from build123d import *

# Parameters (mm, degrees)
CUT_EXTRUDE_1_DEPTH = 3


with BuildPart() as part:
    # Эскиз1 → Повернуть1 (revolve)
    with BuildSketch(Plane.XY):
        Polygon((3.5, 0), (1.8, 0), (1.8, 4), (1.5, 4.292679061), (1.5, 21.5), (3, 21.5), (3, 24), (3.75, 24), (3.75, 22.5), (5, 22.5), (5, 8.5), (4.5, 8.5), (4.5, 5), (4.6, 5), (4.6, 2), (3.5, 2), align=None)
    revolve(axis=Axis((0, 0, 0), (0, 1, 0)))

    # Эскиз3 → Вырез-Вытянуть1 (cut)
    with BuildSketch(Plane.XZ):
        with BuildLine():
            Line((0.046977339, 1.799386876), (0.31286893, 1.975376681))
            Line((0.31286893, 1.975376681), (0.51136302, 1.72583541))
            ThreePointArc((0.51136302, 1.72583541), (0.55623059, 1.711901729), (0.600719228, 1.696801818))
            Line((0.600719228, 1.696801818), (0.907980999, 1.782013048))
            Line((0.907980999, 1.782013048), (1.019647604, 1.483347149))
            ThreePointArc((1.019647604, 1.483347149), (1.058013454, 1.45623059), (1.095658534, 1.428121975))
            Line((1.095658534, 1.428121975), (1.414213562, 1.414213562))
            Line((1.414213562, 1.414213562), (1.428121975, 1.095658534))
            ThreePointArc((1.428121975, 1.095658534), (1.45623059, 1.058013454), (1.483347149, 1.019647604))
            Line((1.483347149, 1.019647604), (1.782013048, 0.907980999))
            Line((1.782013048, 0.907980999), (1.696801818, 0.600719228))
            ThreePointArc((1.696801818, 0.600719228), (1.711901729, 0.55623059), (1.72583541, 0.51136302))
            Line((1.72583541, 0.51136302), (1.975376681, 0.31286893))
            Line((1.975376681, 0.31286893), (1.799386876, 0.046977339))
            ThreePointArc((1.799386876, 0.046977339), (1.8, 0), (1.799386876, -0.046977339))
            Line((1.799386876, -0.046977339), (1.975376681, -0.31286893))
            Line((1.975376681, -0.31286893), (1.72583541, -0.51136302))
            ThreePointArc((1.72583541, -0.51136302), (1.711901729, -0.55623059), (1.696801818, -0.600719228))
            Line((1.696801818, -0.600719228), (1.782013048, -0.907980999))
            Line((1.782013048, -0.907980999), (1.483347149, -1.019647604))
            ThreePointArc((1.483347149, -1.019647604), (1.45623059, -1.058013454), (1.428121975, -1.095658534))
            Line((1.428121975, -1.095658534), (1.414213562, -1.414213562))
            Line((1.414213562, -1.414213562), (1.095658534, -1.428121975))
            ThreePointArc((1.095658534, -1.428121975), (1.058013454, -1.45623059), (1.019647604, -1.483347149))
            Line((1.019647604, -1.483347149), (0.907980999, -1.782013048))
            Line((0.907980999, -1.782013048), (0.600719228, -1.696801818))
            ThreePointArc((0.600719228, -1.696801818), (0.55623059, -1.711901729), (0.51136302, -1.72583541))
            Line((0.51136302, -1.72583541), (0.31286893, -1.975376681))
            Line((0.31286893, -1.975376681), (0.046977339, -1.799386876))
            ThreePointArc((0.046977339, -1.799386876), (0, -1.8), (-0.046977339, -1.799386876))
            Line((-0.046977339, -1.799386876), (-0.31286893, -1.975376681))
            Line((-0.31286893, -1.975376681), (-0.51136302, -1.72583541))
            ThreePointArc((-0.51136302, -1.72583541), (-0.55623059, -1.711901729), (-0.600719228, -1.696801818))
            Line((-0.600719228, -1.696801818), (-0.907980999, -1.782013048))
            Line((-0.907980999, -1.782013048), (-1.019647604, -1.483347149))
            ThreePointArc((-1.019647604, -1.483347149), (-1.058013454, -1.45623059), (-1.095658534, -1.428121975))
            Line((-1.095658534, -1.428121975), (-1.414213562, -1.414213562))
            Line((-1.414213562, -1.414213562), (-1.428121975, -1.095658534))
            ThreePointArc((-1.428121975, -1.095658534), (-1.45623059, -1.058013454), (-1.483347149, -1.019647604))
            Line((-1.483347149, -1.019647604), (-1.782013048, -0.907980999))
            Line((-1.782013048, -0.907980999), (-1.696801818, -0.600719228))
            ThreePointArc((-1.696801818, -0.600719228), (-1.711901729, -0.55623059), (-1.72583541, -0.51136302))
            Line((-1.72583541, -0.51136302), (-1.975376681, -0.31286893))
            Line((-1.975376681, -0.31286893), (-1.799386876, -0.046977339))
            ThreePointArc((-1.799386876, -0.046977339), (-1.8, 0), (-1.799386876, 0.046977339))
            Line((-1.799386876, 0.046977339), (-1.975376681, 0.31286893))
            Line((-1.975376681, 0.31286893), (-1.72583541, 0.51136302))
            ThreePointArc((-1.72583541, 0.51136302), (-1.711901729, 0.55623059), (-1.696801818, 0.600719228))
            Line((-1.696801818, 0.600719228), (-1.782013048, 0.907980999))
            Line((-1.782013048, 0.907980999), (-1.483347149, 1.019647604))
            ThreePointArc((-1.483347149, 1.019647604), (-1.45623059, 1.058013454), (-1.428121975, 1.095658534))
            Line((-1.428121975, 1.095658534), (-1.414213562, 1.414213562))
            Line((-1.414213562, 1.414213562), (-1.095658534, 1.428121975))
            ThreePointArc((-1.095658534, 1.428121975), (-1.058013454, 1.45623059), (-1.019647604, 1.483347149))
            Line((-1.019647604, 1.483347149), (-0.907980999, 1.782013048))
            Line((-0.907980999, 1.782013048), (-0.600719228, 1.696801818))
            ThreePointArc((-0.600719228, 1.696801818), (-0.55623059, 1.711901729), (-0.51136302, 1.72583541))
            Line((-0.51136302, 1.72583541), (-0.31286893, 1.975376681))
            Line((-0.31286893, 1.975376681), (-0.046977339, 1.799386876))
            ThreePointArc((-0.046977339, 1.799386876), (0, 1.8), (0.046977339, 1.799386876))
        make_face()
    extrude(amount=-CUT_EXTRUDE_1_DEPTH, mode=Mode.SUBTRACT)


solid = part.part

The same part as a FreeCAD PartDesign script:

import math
import FreeCAD as App
import Part
import Sketcher
from FreeCAD import Vector
Q = App.Units.Quantity

doc = App.newDocument("Part")
params = doc.addObject("Spreadsheet::Sheet", "Params")
for row, (alias, value) in enumerate([
    ("sketch1_height", "2 mm"),
    ("sketch1_height2", "3 mm"),
    ("sketch1_height3", "14 mm"),
    ("sketch1_height4", "4 mm"),
    ("sketch1_width", "1.7 mm"),
    ("revolution_angle", "360 deg"),
    ("sketch2_radius", "1.8 mm"),
    ("pocket1_length", "3 mm"),
], start=1):
    params.set(f"A{row}", alias)
    params.set(f"B{row}", "=" + value)
    params.setAlias(f"B{row}", alias)

body = doc.addObject("PartDesign::Body", "Body")

# Sketch on XY plane
sketch1 = doc.addObject("Sketcher::SketchObject", "Sketch")
body.addObject(sketch1)
sketch1.AttachmentSupport = (doc.XY_Plane, [""])
sketch1.MapMode = "FlatFace"
sketch1.addGeometry(Part.LineSegment(Vector(1.8, 0, 0), Vector(3.5, 0, 0)), False)
sketch1.addGeometry(Part.LineSegment(Vector(3.5, 0, 0), Vector(3.5, 2, 0)), False)
sketch1.addGeometry(Part.LineSegment(Vector(3.5, 2, 0), Vector(4.6, 2, 0)), False)
sketch1.addGeometry(Part.LineSegment(Vector(4.6, 2, 0), Vector(4.6, 5, 0)), False)
sketch1.addGeometry(Part.LineSegment(Vector(4.6, 5, 0), Vector(4.5, 5, 0)), False)
sketch1.addGeometry(Part.LineSegment(Vector(4.5, 5, 0), Vector(4.5, 8.5, 0)), False)
sketch1.addGeometry(Part.LineSegment(Vector(4.5, 8.5, 0), Vector(5, 8.5, 0)), False)
sketch1.addGeometry(Part.LineSegment(Vector(5, 8.5, 0), Vector(5, 22.5, 0)), False)
sketch1.addGeometry(Part.LineSegment(Vector(5, 22.5, 0), Vector(3.75, 22.5, 0)), False)
sketch1.addGeometry(Part.LineSegment(Vector(3.75, 22.5, 0), Vector(3.75, 24, 0)), False)
sketch1.addGeometry(Part.LineSegment(Vector(3.75, 24, 0), Vector(3, 24, 0)), False)
sketch1.addGeometry(Part.LineSegment(Vector(3, 24, 0), Vector(3, 21.5, 0)), False)
sketch1.addGeometry(Part.LineSegment(Vector(3, 21.5, 0), Vector(1.5, 21.5, 0)), False)
sketch1.addGeometry(Part.LineSegment(Vector(1.5, 21.5, 0), Vector(1.5, 4.29, 0)), False)
sketch1.addGeometry(Part.LineSegment(Vector(1.5, 4.29, 0), Vector(1.8, 4, 0)), False)
sketch1.addGeometry(Part.LineSegment(Vector(1.8, 4, 0), Vector(1.8, 0, 0)), False)
sketch1.addConstraint(Sketcher.Constraint("Coincident", 0, 2, 1, 1))
sketch1.addConstraint(Sketcher.Constraint("Coincident", 1, 2, 2, 1))
sketch1.addConstraint(Sketcher.Constraint("Coincident", 2, 2, 3, 1))
sketch1.addConstraint(Sketcher.Constraint("Coincident", 3, 2, 4, 1))
sketch1.addConstraint(Sketcher.Constraint("Coincident", 4, 2, 5, 1))
sketch1.addConstraint(Sketcher.Constraint("Coincident", 5, 2, 6, 1))
sketch1.addConstraint(Sketcher.Constraint("Coincident", 6, 2, 7, 1))
sketch1.addConstraint(Sketcher.Constraint("Coincident", 7, 2, 8, 1))
sketch1.addConstraint(Sketcher.Constraint("Coincident", 8, 2, 9, 1))
sketch1.addConstraint(Sketcher.Constraint("Coincident", 9, 2, 10, 1))
sketch1.addConstraint(Sketcher.Constraint("Coincident", 10, 2, 11, 1))
sketch1.addConstraint(Sketcher.Constraint("Coincident", 11, 2, 12, 1))
sketch1.addConstraint(Sketcher.Constraint("Coincident", 12, 2, 13, 1))
sketch1.addConstraint(Sketcher.Constraint("Coincident", 13, 2, 14, 1))
sketch1.addConstraint(Sketcher.Constraint("Coincident", 14, 2, 15, 1))
sketch1.addConstraint(Sketcher.Constraint("Coincident", 15, 2, 0, 1))
sketch1.addConstraint(Sketcher.Constraint("Horizontal", 0))
sketch1.addConstraint(Sketcher.Constraint("Vertical", 1))
sketch1.addConstraint(Sketcher.Constraint("Horizontal", 2))
sketch1.addConstraint(Sketcher.Constraint("Vertical", 3))
sketch1.addConstraint(Sketcher.Constraint("Horizontal", 4))
sketch1.addConstraint(Sketcher.Constraint("Vertical", 5))
sketch1.addConstraint(Sketcher.Constraint("Horizontal", 6))
sketch1.addConstraint(Sketcher.Constraint("Vertical", 7))
sketch1.addConstraint(Sketcher.Constraint("Horizontal", 8))
sketch1.addConstraint(Sketcher.Constraint("Vertical", 9))
sketch1.addConstraint(Sketcher.Constraint("Horizontal", 10))
sketch1.addConstraint(Sketcher.Constraint("Vertical", 11))
sketch1.addConstraint(Sketcher.Constraint("Horizontal", 12))
sketch1.addConstraint(Sketcher.Constraint("Vertical", 13))
sketch1.addConstraint(Sketcher.Constraint("Vertical", 15))
sketch1.addConstraint(Sketcher.Constraint("PointOnObject", 0, 2, -1))
sketch1.addConstraint(Sketcher.Constraint("Equal", 12, 9))
sketch1.addConstraint(Sketcher.Constraint("DistanceY", 1, 1, 1, 2, Q("2 mm")))
sketch1.addConstraint(Sketcher.Constraint("DistanceY", 3, 1, 3, 2, Q("3 mm")))
sketch1.addConstraint(Sketcher.Constraint("DistanceY", 7, 1, 7, 2, Q("14 mm")))
sketch1.addConstraint(Sketcher.Constraint("DistanceY", 15, 2, 15, 1, Q("4 mm")))
sketch1.addConstraint(Sketcher.Constraint("DistanceX", 0, 1, 0, 2, Q("1.7 mm")))
sketch1.addConstraint(Sketcher.Constraint("DistanceX", 2, 1, 2, 2, Q("1.1 mm")))
sketch1.addConstraint(Sketcher.Constraint("DistanceX", 4, 2, 4, 1, Q("0.1 mm")))
sketch1.addConstraint(Sketcher.Constraint("DistanceX", 6, 1, 6, 2, Q("0.5 mm")))
sketch1.addConstraint(Sketcher.Constraint("DistanceX", 12, 2, 12, 1, Q("1.5 mm")))
sketch1.addConstraint(Sketcher.Constraint("DistanceY", 5, 1, 5, 2, Q("3.5 mm")))
sketch1.addConstraint(Sketcher.Constraint("DistanceY", 11, 2, 11, 1, Q("2.5 mm")))
sketch1.addConstraint(Sketcher.Constraint("DistanceX", -1, 1, 6, 2, Q("5 mm")))
sketch1.addConstraint(Sketcher.Constraint("DistanceX", -1, 1, 10, 2, Q("3 mm")))
sketch1.addConstraint(Sketcher.Constraint("DistanceX", 8, 2, 8, 1, Q("1.25 mm")))
sketch1.addConstraint(Sketcher.Constraint("DistanceY", 13, 2, 13, 1, Q("17.207321 mm")))
sketch1.setExpression("Constraints[33]", "Params.sketch1_height")
sketch1.setExpression("Constraints[34]", "Params.sketch1_height2")
sketch1.setExpression("Constraints[35]", "Params.sketch1_height3")
sketch1.setExpression("Constraints[36]", "Params.sketch1_height4")
sketch1.setExpression("Constraints[37]", "Params.sketch1_width")
revolution = doc.addObject("PartDesign::Revolution", "Revolution")
body.addObject(revolution)
revolution.Profile = sketch1
revolution.ReferenceAxis = (sketch1, ["V_Axis"])
revolution.setExpression("Angle", "Params.revolution_angle")

# Sketch on XZ plane
sketch2 = doc.addObject("Sketcher::SketchObject", "Sketch001")
body.addObject(sketch2)
sketch2.AttachmentSupport = (doc.XZ_Plane, [""])
sketch2.MapMode = "FlatFace"
sketch2.addGeometry(Part.LineSegment(Vector(0.31, 1.98, 0), Vector(0.05, 1.8, 0)), False)
sketch2.addGeometry(Part.ArcOfCircle(Part.Circle(Vector(0, 0, 0), Vector(0, 0, 1), 1.8), math.radians(88.5), math.radians(91.5)), False)
sketch2.addGeometry(Part.LineSegment(Vector(-0.05, 1.8, 0), Vector(-0.31, 1.98, 0)), False)
sketch2.addGeometry(Part.LineSegment(Vector(-0.31, 1.98, 0), Vector(-0.51, 1.73, 0)), False)
sketch2.addGeometry(Part.ArcOfCircle(Part.Circle(Vector(0, 0, 0), Vector(0, 0, 1), 1.8), math.radians(106.5), math.radians(109.5)), False)
sketch2.addGeometry(Part.LineSegment(Vector(-0.6, 1.7, 0), Vector(-0.91, 1.78, 0)), False)
sketch2.addGeometry(Part.LineSegment(Vector(-0.91, 1.78, 0), Vector(-1.02, 1.48, 0)), False)
sketch2.addGeometry(Part.ArcOfCircle(Part.Circle(Vector(0, 0, 0), Vector(0, 0, 1), 1.8), math.radians(124.5), math.radians(127.5)), False)
sketch2.addGeometry(Part.LineSegment(Vector(-1.1, 1.43, 0), Vector(-1.41, 1.41, 0)), False)
sketch2.addGeometry(Part.LineSegment(Vector(-1.41, 1.41, 0), Vector(-1.43, 1.1, 0)), False)
sketch2.addGeometry(Part.ArcOfCircle(Part.Circle(Vector(0, 0, 0), Vector(0, 0, 1), 1.8), math.radians(142.5), math.radians(145.5)), False)
sketch2.addGeometry(Part.LineSegment(Vector(-1.48, 1.02, 0), Vector(-1.78, 0.91, 0)), False)
sketch2.addGeometry(Part.LineSegment(Vector(-1.78, 0.91, 0), Vector(-1.7, 0.6, 0)), False)
sketch2.addGeometry(Part.ArcOfCircle(Part.Circle(Vector(0, 0, 0), Vector(0, 0, 1), 1.8), math.radians(160.5), math.radians(163.5)), False)
sketch2.addGeometry(Part.LineSegment(Vector(-1.73, 0.51, 0), Vector(-1.98, 0.31, 0)), False)
sketch2.addGeometry(Part.LineSegment(Vector(-1.98, 0.31, 0), Vector(-1.8, 0.05, 0)), False)
sketch2.addGeometry(Part.ArcOfCircle(Part.Circle(Vector(0, 0, 0), Vector(0, 0, 1), 1.8), math.radians(178.5), math.radians(181.5)), False)
sketch2.addGeometry(Part.LineSegment(Vector(-1.8, -0.05, 0), Vector(-1.98, -0.31, 0)), False)
sketch2.addGeometry(Part.LineSegment(Vector(-1.98, -0.31, 0), Vector(-1.73, -0.51, 0)), False)
sketch2.addGeometry(Part.ArcOfCircle(Part.Circle(Vector(0, 0, 0), Vector(0, 0, 1), 1.8), math.radians(-163.5), math.radians(-160.5)), False)
sketch2.addGeometry(Part.LineSegment(Vector(-1.7, -0.6, 0), Vector(-1.78, -0.91, 0)), False)
sketch2.addGeometry(Part.LineSegment(Vector(-1.78, -0.91, 0), Vector(-1.48, -1.02, 0)), False)
sketch2.addGeometry(Part.ArcOfCircle(Part.Circle(Vector(0, 0, 0), Vector(0, 0, 1), 1.8), math.radians(-145.5), math.radians(-142.5)), False)
sketch2.addGeometry(Part.LineSegment(Vector(-1.43, -1.1, 0), Vector(-1.41, -1.41, 0)), False)
sketch2.addGeometry(Part.LineSegment(Vector(-1.41, -1.41, 0), Vector(-1.1, -1.43, 0)), False)
sketch2.addGeometry(Part.ArcOfCircle(Part.Circle(Vector(0, 0, 0), Vector(0, 0, 1), 1.8), math.radians(-127.5), math.radians(-124.5)), False)
sketch2.addGeometry(Part.LineSegment(Vector(-1.02, -1.48, 0), Vector(-0.91, -1.78, 0)), False)
sketch2.addGeometry(Part.LineSegment(Vector(-0.91, -1.78, 0), Vector(-0.6, -1.7, 0)), False)
sketch2.addGeometry(Part.ArcOfCircle(Part.Circle(Vector(0, 0, 0), Vector(0, 0, 1), 1.8), math.radians(-109.5), math.radians(-106.5)), False)
sketch2.addGeometry(Part.LineSegment(Vector(-0.51, -1.73, 0), Vector(-0.31, -1.98, 0)), False)
sketch2.addGeometry(Part.LineSegment(Vector(-0.31, -1.98, 0), Vector(-0.05, -1.8, 0)), False)
sketch2.addGeometry(Part.ArcOfCircle(Part.Circle(Vector(0, 0, 0), Vector(0, 0, 1), 1.8), math.radians(-91.5), math.radians(-88.5)), False)
sketch2.addGeometry(Part.LineSegment(Vector(0.05, -1.8, 0), Vector(0.31, -1.98, 0)), False)
sketch2.addGeometry(Part.LineSegment(Vector(0.31, -1.98, 0), Vector(0.51, -1.73, 0)), False)
sketch2.addGeometry(Part.ArcOfCircle(Part.Circle(Vector(0, 0, 0), Vector(0, 0, 1), 1.8), math.radians(-73.5), math.radians(-70.5)), False)
sketch2.addGeometry(Part.LineSegment(Vector(0.6, -1.7, 0), Vector(0.91, -1.78, 0)), False)
sketch2.addGeometry(Part.LineSegment(Vector(0.91, -1.78, 0), Vector(1.02, -1.48, 0)), False)
sketch2.addGeometry(Part.ArcOfCircle(Part.Circle(Vector(0, 0, 0), Vector(0, 0, 1), 1.8), math.radians(-55.5), math.radians(-52.5)), False)
sketch2.addGeometry(Part.LineSegment(Vector(1.1, -1.43, 0), Vector(1.41, -1.41, 0)), False)
sketch2.addGeometry(Part.LineSegment(Vector(1.41, -1.41, 0), Vector(1.43, -1.1, 0)), False)
sketch2.addGeometry(Part.ArcOfCircle(Part.Circle(Vector(0, 0, 0), Vector(0, 0, 1), 1.8), math.radians(-37.5), math.radians(-34.5)), False)
sketch2.addGeometry(Part.LineSegment(Vector(1.48, -1.02, 0), Vector(1.78, -0.91, 0)), False)
sketch2.addGeometry(Part.LineSegment(Vector(1.78, -0.91, 0), Vector(1.7, -0.6, 0)), False)
sketch2.addGeometry(Part.ArcOfCircle(Part.Circle(Vector(0, 0, 0), Vector(0, 0, 1), 1.8), math.radians(-19.5), math.radians(-16.5)), False)
sketch2.addGeometry(Part.LineSegment(Vector(1.73, -0.51, 0), Vector(1.98, -0.31, 0)), False)
sketch2.addGeometry(Part.LineSegment(Vector(1.98, -0.31, 0), Vector(1.8, -0.05, 0)), False)
sketch2.addGeometry(Part.ArcOfCircle(Part.Circle(Vector(0, 0, 0), Vector(0, 0, 1), 1.8), math.radians(-1.5), math.radians(1.5)), False)
sketch2.addGeometry(Part.LineSegment(Vector(1.8, 0.05, 0), Vector(1.98, 0.31, 0)), False)
sketch2.addGeometry(Part.LineSegment(Vector(1.98, 0.31, 0), Vector(1.73, 0.51, 0)), False)
sketch2.addGeometry(Part.ArcOfCircle(Part.Circle(Vector(0, 0, 0), Vector(0, 0, 1), 1.8), math.radians(16.5), math.radians(19.5)), False)
sketch2.addGeometry(Part.LineSegment(Vector(1.7, 0.6, 0), Vector(1.78, 0.91, 0)), False)
sketch2.addGeometry(Part.LineSegment(Vector(1.78, 0.91, 0), Vector(1.48, 1.02, 0)), False)
sketch2.addGeometry(Part.ArcOfCircle(Part.Circle(Vector(0, 0, 0), Vector(0, 0, 1), 1.8), math.radians(34.5), math.radians(37.5)), False)
sketch2.addGeometry(Part.LineSegment(Vector(1.43, 1.1, 0), Vector(1.41, 1.41, 0)), False)
sketch2.addGeometry(Part.LineSegment(Vector(1.41, 1.41, 0), Vector(1.1, 1.43, 0)), False)
sketch2.addGeometry(Part.ArcOfCircle(Part.Circle(Vector(0, 0, 0), Vector(0, 0, 1), 1.8), math.radians(52.5), math.radians(55.5)), False)
sketch2.addGeometry(Part.LineSegment(Vector(1.02, 1.48, 0), Vector(0.91, 1.78, 0)), False)
sketch2.addGeometry(Part.LineSegment(Vector(0.91, 1.78, 0), Vector(0.6, 1.7, 0)), False)
sketch2.addGeometry(Part.ArcOfCircle(Part.Circle(Vector(0, 0, 0), Vector(0, 0, 1), 1.8), math.radians(70.5), math.radians(73.5)), False)
sketch2.addGeometry(Part.LineSegment(Vector(0.51, 1.73, 0), Vector(0.31, 1.98, 0)), False)
sketch2.addConstraint(Sketcher.Constraint("Coincident", 0, 2, 1, 1))
sketch2.addConstraint(Sketcher.Constraint("Coincident", 1, 2, 2, 1))
sketch2.addConstraint(Sketcher.Constraint("Coincident", 2, 2, 3, 1))
sketch2.addConstraint(Sketcher.Constraint("Coincident", 3, 2, 4, 1))
sketch2.addConstraint(Sketcher.Constraint("Coincident", 4, 2, 5, 1))
sketch2.addConstraint(Sketcher.Constraint("Coincident", 5, 2, 6, 1))
sketch2.addConstraint(Sketcher.Constraint("Coincident", 6, 2, 7, 1))
sketch2.addConstraint(Sketcher.Constraint("Coincident", 7, 2, 8, 1))
sketch2.addConstraint(Sketcher.Constraint("Coincident", 8, 2, 9, 1))
sketch2.addConstraint(Sketcher.Constraint("Coincident", 9, 2, 10, 1))
sketch2.addConstraint(Sketcher.Constraint("Coincident", 10, 2, 11, 1))
sketch2.addConstraint(Sketcher.Constraint("Coincident", 11, 2, 12, 1))
sketch2.addConstraint(Sketcher.Constraint("Coincident", 12, 2, 13, 1))
sketch2.addConstraint(Sketcher.Constraint("Coincident", 13, 2, 14, 1))
sketch2.addConstraint(Sketcher.Constraint("Coincident", 14, 2, 15, 1))
sketch2.addConstraint(Sketcher.Constraint("Coincident", 15, 2, 16, 1))
sketch2.addConstraint(Sketcher.Constraint("Coincident", 16, 2, 17, 1))
sketch2.addConstraint(Sketcher.Constraint("Coincident", 17, 2, 18, 1))
sketch2.addConstraint(Sketcher.Constraint("Coincident", 18, 2, 19, 1))
sketch2.addConstraint(Sketcher.Constraint("Coincident", 19, 2, 20, 1))
sketch2.addConstraint(Sketcher.Constraint("Coincident", 20, 2, 21, 1))
sketch2.addConstraint(Sketcher.Constraint("Coincident", 21, 2, 22, 1))
sketch2.addConstraint(Sketcher.Constraint("Coincident", 22, 2, 23, 1))
sketch2.addConstraint(Sketcher.Constraint("Coincident", 23, 2, 24, 1))
sketch2.addConstraint(Sketcher.Constraint("Coincident", 24, 2, 25, 1))
sketch2.addConstraint(Sketcher.Constraint("Coincident", 25, 2, 26, 1))
sketch2.addConstraint(Sketcher.Constraint("Coincident", 26, 2, 27, 1))
sketch2.addConstraint(Sketcher.Constraint("Coincident", 27, 2, 28, 1))
sketch2.addConstraint(Sketcher.Constraint("Coincident", 28, 2, 29, 1))
sketch2.addConstraint(Sketcher.Constraint("Coincident", 29, 2, 30, 1))
sketch2.addConstraint(Sketcher.Constraint("Coincident", 30, 2, 31, 1))
sketch2.addConstraint(Sketcher.Constraint("Coincident", 31, 2, 32, 1))
sketch2.addConstraint(Sketcher.Constraint("Coincident", 32, 2, 33, 1))
sketch2.addConstraint(Sketcher.Constraint("Coincident", 33, 2, 34, 1))
sketch2.addConstraint(Sketcher.Constraint("Coincident", 34, 2, 35, 1))
sketch2.addConstraint(Sketcher.Constraint("Coincident", 35, 2, 36, 1))
sketch2.addConstraint(Sketcher.Constraint("Coincident", 36, 2, 37, 1))
sketch2.addConstraint(Sketcher.Constraint("Coincident", 37, 2, 38, 1))
sketch2.addConstraint(Sketcher.Constraint("Coincident", 38, 2, 39, 1))
sketch2.addConstraint(Sketcher.Constraint("Coincident", 39, 2, 40, 1))
sketch2.addConstraint(Sketcher.Constraint("Coincident", 40, 2, 41, 1))
sketch2.addConstraint(Sketcher.Constraint("Coincident", 41, 2, 42, 1))
sketch2.addConstraint(Sketcher.Constraint("Coincident", 42, 2, 43, 1))
sketch2.addConstraint(Sketcher.Constraint("Coincident", 43, 2, 44, 1))
sketch2.addConstraint(Sketcher.Constraint("Coincident", 44, 2, 45, 1))
sketch2.addConstraint(Sketcher.Constraint("Coincident", 45, 2, 46, 1))
sketch2.addConstraint(Sketcher.Constraint("Coincident", 46, 2, 47, 1))
sketch2.addConstraint(Sketcher.Constraint("Coincident", 47, 2, 48, 1))
sketch2.addConstraint(Sketcher.Constraint("Coincident", 48, 2, 49, 1))
sketch2.addConstraint(Sketcher.Constraint("Coincident", 49, 2, 50, 1))
sketch2.addConstraint(Sketcher.Constraint("Coincident", 50, 2, 51, 1))
sketch2.addConstraint(Sketcher.Constraint("Coincident", 51, 2, 52, 1))
sketch2.addConstraint(Sketcher.Constraint("Coincident", 52, 2, 53, 1))
sketch2.addConstraint(Sketcher.Constraint("Coincident", 53, 2, 54, 1))
sketch2.addConstraint(Sketcher.Constraint("Coincident", 54, 2, 55, 1))
sketch2.addConstraint(Sketcher.Constraint("Coincident", 55, 2, 56, 1))
sketch2.addConstraint(Sketcher.Constraint("Coincident", 56, 2, 57, 1))
sketch2.addConstraint(Sketcher.Constraint("Coincident", 57, 2, 58, 1))
sketch2.addConstraint(Sketcher.Constraint("Coincident", 58, 2, 59, 1))
sketch2.addConstraint(Sketcher.Constraint("Coincident", 59, 2, 0, 1))
sketch2.addConstraint(Sketcher.Constraint("Coincident", 1, 3, -1, 1))
sketch2.addConstraint(Sketcher.Constraint("Coincident", 4, 3, -1, 1))
sketch2.addConstraint(Sketcher.Constraint("Coincident", 7, 3, -1, 1))
sketch2.addConstraint(Sketcher.Constraint("Coincident", 10, 3, -1, 1))
sketch2.addConstraint(Sketcher.Constraint("Coincident", 13, 3, -1, 1))
sketch2.addConstraint(Sketcher.Constraint("Coincident", 16, 3, -1, 1))
sketch2.addConstraint(Sketcher.Constraint("Coincident", 19, 3, -1, 1))
sketch2.addConstraint(Sketcher.Constraint("Coincident", 22, 3, -1, 1))
sketch2.addConstraint(Sketcher.Constraint("Coincident", 25, 3, -1, 1))
sketch2.addConstraint(Sketcher.Constraint("Coincident", 28, 3, -1, 1))
sketch2.addConstraint(Sketcher.Constraint("Coincident", 31, 3, -1, 1))
sketch2.addConstraint(Sketcher.Constraint("Coincident", 34, 3, -1, 1))
sketch2.addConstraint(Sketcher.Constraint("Coincident", 37, 3, -1, 1))
sketch2.addConstraint(Sketcher.Constraint("Coincident", 40, 3, -1, 1))
sketch2.addConstraint(Sketcher.Constraint("Coincident", 43, 3, -1, 1))
sketch2.addConstraint(Sketcher.Constraint("Coincident", 46, 3, -1, 1))
sketch2.addConstraint(Sketcher.Constraint("Coincident", 49, 3, -1, 1))
sketch2.addConstraint(Sketcher.Constraint("Coincident", 52, 3, -1, 1))
sketch2.addConstraint(Sketcher.Constraint("Coincident", 55, 3, -1, 1))
sketch2.addConstraint(Sketcher.Constraint("Coincident", 58, 3, -1, 1))
sketch2.addConstraint(Sketcher.Constraint("Equal", 1, 4))
sketch2.addConstraint(Sketcher.Constraint("Equal", 4, 7))
sketch2.addConstraint(Sketcher.Constraint("Equal", 7, 10))
sketch2.addConstraint(Sketcher.Constraint("Equal", 10, 13))
sketch2.addConstraint(Sketcher.Constraint("Equal", 13, 16))
sketch2.addConstraint(Sketcher.Constraint("Equal", 16, 19))
sketch2.addConstraint(Sketcher.Constraint("Equal", 19, 22))
sketch2.addConstraint(Sketcher.Constraint("Equal", 22, 25))
sketch2.addConstraint(Sketcher.Constraint("Equal", 25, 28))
sketch2.addConstraint(Sketcher.Constraint("Equal", 28, 31))
sketch2.addConstraint(Sketcher.Constraint("Equal", 31, 34))
sketch2.addConstraint(Sketcher.Constraint("Equal", 34, 37))
sketch2.addConstraint(Sketcher.Constraint("Equal", 37, 40))
sketch2.addConstraint(Sketcher.Constraint("Equal", 40, 43))
sketch2.addConstraint(Sketcher.Constraint("Equal", 43, 46))
sketch2.addConstraint(Sketcher.Constraint("Equal", 46, 49))
sketch2.addConstraint(Sketcher.Constraint("Equal", 49, 52))
sketch2.addConstraint(Sketcher.Constraint("Equal", 52, 55))
sketch2.addConstraint(Sketcher.Constraint("Equal", 55, 58))
sketch2.addConstraint(Sketcher.Constraint("Symmetric", 2, 2, 32, 2, -1, 1))
sketch2.addConstraint(Sketcher.Constraint("Symmetric", 5, 2, 35, 2, -1, 1))
sketch2.addConstraint(Sketcher.Constraint("Symmetric", 8, 2, 38, 2, -1, 1))
sketch2.addConstraint(Sketcher.Constraint("Symmetric", 11, 2, 41, 2, -1, 1))
sketch2.addConstraint(Sketcher.Constraint("Symmetric", 14, 2, 44, 2, -1, 1))
sketch2.addConstraint(Sketcher.Constraint("Symmetric", 17, 2, 47, 2, -1, 1))
sketch2.addConstraint(Sketcher.Constraint("Symmetric", 20, 2, 50, 2, -1, 1))
sketch2.addConstraint(Sketcher.Constraint("Symmetric", 23, 2, 53, 2, -1, 1))
sketch2.addConstraint(Sketcher.Constraint("Symmetric", 26, 2, 56, 2, -1, 1))
sketch2.addConstraint(Sketcher.Constraint("Symmetric", 29, 2, 59, 2, -1, 1))
sketch2.addConstraint(Sketcher.Constraint("Symmetric", 29, 2, 32, 2, -2))
sketch2.addConstraint(Sketcher.Constraint("Symmetric", 26, 2, 35, 2, -2))
sketch2.addConstraint(Sketcher.Constraint("Symmetric", 23, 2, 38, 2, -2))
sketch2.addConstraint(Sketcher.Constraint("Symmetric", 20, 2, 41, 2, -2))
sketch2.addConstraint(Sketcher.Constraint("Symmetric", 17, 2, 44, 2, -2))
sketch2.addConstraint(Sketcher.Constraint("Perpendicular", 0, 15))
sketch2.addConstraint(Sketcher.Constraint("Perpendicular", 2, 17))
sketch2.addConstraint(Sketcher.Constraint("Perpendicular", 3, 18))
sketch2.addConstraint(Sketcher.Constraint("Perpendicular", 5, 20))
sketch2.addConstraint(Sketcher.Constraint("Perpendicular", 6, 21))
sketch2.addConstraint(Sketcher.Constraint("Perpendicular", 8, 23))
sketch2.addConstraint(Sketcher.Constraint("Perpendicular", 9, 24))
sketch2.addConstraint(Sketcher.Constraint("Perpendicular", 11, 26))
sketch2.addConstraint(Sketcher.Constraint("Perpendicular", 12, 27))
sketch2.addConstraint(Sketcher.Constraint("Perpendicular", 14, 29))
sketch2.addConstraint(Sketcher.Constraint("Perpendicular", 15, 30))
sketch2.addConstraint(Sketcher.Constraint("Perpendicular", 17, 32))
sketch2.addConstraint(Sketcher.Constraint("Perpendicular", 18, 33))
sketch2.addConstraint(Sketcher.Constraint("Perpendicular", 20, 35))
sketch2.addConstraint(Sketcher.Constraint("Perpendicular", 21, 36))
sketch2.addConstraint(Sketcher.Constraint("Perpendicular", 23, 38))
sketch2.addConstraint(Sketcher.Constraint("Perpendicular", 24, 39))
sketch2.addConstraint(Sketcher.Constraint("Perpendicular", 26, 41))
sketch2.addConstraint(Sketcher.Constraint("Perpendicular", 27, 42))
sketch2.addConstraint(Sketcher.Constraint("Perpendicular", 29, 44))
sketch2.addConstraint(Sketcher.Constraint("Perpendicular", 30, 45))
sketch2.addConstraint(Sketcher.Constraint("Perpendicular", 32, 47))
sketch2.addConstraint(Sketcher.Constraint("Perpendicular", 33, 48))
sketch2.addConstraint(Sketcher.Constraint("Perpendicular", 35, 50))
sketch2.addConstraint(Sketcher.Constraint("Perpendicular", 36, 51))
sketch2.addConstraint(Sketcher.Constraint("Perpendicular", 38, 53))
sketch2.addConstraint(Sketcher.Constraint("Perpendicular", 39, 54))
sketch2.addConstraint(Sketcher.Constraint("Perpendicular", 41, 56))
sketch2.addConstraint(Sketcher.Constraint("Perpendicular", 42, 57))
sketch2.addConstraint(Sketcher.Constraint("Perpendicular", 44, 59))
sketch2.addConstraint(Sketcher.Constraint("Horizontal", 0, 2, 1, 2))
sketch2.addConstraint(Sketcher.Constraint("Horizontal", 28, 2, 33, 2))
sketch2.addConstraint(Sketcher.Constraint("Horizontal", 27, 2, 34, 2))
sketch2.addConstraint(Sketcher.Constraint("Horizontal", 25, 2, 36, 2))
sketch2.addConstraint(Sketcher.Constraint("Horizontal", 24, 2, 37, 2))
sketch2.addConstraint(Sketcher.Constraint("Equal", 2, 3))
sketch2.addConstraint(Sketcher.Constraint("Equal", 3, 5))
sketch2.addConstraint(Sketcher.Constraint("Equal", 5, 6))
sketch2.addConstraint(Sketcher.Constraint("Equal", 6, 8))
sketch2.addConstraint(Sketcher.Constraint("Equal", 8, 9))
sketch2.addConstraint(Sketcher.Constraint("Equal", 9, 11))
sketch2.addConstraint(Sketcher.Constraint("Equal", 11, 12))
sketch2.addConstraint(Sketcher.Constraint("Equal", 12, 14))
sketch2.addConstraint(Sketcher.Constraint("Equal", 14, 15))
sketch2.addConstraint(Sketcher.Constraint("Radius", 1, Q("1.8 mm")))
sketch2.addConstraint(Sketcher.Constraint("Angle", 0, Q("-146.5 deg")))
sketch2.addConstraint(Sketcher.Constraint("Angle", 3, Q("-128.5 deg")))
sketch2.addConstraint(Sketcher.Constraint("Angle", 5, Q("164.5 deg")))
sketch2.addConstraint(Sketcher.Constraint("Angle", 6, Q("-110.5 deg")))
sketch2.addConstraint(Sketcher.Constraint("Angle", 8, Q("-177.5 deg")))
sketch2.addConstraint(Sketcher.Constraint("DistanceY", -1, 1, 4, 2, Q("1.696802 mm")))
sketch2.setExpression("Constraints[158]", "Params.sketch2_radius")
pocket1 = doc.addObject("PartDesign::Pocket", "Pocket")
body.addObject(pocket1)
pocket1.Profile = sketch2
pocket1.setExpression("Length", "Params.pocket1_length")

doc.recompute()
